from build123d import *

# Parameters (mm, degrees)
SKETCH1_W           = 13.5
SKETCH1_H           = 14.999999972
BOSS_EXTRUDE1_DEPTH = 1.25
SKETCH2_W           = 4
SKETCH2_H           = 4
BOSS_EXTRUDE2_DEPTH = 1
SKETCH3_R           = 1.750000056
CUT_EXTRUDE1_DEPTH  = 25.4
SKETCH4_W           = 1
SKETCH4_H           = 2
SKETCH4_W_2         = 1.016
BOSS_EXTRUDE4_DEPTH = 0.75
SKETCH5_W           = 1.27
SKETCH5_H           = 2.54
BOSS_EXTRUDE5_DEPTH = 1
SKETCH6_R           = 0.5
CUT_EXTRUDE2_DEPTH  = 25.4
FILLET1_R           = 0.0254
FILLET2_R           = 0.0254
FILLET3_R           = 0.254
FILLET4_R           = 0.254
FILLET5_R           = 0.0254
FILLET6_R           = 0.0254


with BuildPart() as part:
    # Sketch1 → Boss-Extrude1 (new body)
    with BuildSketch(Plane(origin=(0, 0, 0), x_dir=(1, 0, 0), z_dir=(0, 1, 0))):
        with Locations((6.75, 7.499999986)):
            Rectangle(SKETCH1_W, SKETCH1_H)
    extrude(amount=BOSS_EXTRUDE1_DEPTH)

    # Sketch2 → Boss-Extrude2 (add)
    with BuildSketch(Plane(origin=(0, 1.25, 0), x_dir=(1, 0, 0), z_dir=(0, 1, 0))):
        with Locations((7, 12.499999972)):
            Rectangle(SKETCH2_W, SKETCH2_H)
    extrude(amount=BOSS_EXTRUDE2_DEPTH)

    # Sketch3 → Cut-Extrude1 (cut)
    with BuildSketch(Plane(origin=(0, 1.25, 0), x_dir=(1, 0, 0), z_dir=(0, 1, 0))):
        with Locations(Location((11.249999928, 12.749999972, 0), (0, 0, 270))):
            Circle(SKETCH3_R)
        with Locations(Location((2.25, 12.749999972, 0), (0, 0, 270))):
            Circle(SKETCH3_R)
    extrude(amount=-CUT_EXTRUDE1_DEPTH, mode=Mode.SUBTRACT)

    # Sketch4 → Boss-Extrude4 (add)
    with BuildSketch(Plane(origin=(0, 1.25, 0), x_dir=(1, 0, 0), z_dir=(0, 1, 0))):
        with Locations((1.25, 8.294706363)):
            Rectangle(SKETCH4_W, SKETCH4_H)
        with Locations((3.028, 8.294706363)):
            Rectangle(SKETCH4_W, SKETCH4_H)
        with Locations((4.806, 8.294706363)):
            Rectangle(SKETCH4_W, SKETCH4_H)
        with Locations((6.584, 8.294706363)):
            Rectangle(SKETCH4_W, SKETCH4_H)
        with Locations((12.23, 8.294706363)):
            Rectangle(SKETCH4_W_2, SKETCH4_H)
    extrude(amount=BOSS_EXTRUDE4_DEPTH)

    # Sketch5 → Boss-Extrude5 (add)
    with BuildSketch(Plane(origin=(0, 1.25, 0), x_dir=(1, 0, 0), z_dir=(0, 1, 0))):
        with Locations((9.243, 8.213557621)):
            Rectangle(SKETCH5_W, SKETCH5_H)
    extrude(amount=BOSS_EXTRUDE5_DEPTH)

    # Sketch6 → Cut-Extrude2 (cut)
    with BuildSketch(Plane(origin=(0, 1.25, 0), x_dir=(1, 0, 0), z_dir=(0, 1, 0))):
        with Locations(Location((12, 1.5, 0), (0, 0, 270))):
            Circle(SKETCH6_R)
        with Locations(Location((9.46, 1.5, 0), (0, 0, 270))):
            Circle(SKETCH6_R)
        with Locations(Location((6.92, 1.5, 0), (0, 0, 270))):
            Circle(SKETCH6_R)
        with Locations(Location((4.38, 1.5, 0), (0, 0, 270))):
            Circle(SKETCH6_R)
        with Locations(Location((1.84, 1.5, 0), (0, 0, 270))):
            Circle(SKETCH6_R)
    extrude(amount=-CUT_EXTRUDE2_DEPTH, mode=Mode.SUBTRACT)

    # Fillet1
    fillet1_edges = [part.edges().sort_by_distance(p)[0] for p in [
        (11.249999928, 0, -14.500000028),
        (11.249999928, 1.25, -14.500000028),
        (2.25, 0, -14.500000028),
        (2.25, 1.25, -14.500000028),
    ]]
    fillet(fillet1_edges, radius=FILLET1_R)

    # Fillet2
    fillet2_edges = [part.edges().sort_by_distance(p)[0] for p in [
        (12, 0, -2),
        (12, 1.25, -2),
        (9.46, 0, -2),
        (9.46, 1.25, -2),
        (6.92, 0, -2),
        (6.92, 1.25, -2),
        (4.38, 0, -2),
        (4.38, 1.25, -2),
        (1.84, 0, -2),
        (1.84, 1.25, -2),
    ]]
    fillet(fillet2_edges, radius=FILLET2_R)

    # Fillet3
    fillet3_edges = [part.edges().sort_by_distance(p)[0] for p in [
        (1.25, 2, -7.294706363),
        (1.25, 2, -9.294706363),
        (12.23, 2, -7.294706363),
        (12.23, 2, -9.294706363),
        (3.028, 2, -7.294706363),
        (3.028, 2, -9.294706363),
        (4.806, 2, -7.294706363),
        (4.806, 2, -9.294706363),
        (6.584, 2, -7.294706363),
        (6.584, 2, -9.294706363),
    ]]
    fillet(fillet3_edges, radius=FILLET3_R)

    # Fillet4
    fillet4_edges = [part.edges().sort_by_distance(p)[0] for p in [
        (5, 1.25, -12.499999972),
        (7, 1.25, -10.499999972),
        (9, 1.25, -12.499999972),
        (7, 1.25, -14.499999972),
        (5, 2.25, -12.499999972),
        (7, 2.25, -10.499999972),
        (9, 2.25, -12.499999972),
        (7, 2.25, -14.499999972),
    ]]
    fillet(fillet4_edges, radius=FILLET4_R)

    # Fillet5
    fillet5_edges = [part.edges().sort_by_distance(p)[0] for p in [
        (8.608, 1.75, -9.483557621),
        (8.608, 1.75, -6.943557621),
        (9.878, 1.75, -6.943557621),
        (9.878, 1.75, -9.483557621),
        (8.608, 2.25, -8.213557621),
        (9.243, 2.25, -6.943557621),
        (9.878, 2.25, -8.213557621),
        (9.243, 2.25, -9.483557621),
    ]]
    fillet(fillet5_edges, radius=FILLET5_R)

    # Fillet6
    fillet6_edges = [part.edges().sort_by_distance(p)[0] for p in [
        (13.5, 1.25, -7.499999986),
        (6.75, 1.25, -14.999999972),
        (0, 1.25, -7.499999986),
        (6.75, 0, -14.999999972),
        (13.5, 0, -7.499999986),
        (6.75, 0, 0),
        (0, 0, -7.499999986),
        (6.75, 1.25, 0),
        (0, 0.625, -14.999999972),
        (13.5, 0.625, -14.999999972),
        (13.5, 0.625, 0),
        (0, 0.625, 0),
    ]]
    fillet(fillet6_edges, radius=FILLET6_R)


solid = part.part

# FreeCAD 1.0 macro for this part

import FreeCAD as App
import Part
import Sketcher
from FreeCAD import Vector


def edges_at(feature, points):
    """Names of the edges that pass closest to the given points."""
    edges = feature.Shape.Edges
    near = lambda p: min(range(len(edges)), key=lambda i: edges[i].distToShape(Part.Vertex(*p))[0])
    return sorted({f"Edge{near(p) + 1}" for p in points})


def add_polygon(sketch, points):
    """Adds a closed chain of lines whose ends are joined by coincident constraints."""
    first, n = sketch.GeometryCount, len(points)
    for a, b in zip(points, points[1:] + points[:1]):
        sketch.addGeometry(Part.LineSegment(App.Vector(*a, 0), App.Vector(*b, 0)), False)
    for i in range(n):
        sketch.addConstraint(Sketcher.Constraint("Coincident", first + i, 2, first + (i + 1) % n, 1))

doc = App.newDocument("Part")
params = doc.addObject("Spreadsheet::Sheet", "Params")
for row, (alias, value) in enumerate([
    ("sketch1_height", "15 mm"),
    ("sketch1_width", "13.5 mm"),
    ("pad1_length", "1.25 mm"),
    ("sketch2_width", "4 mm"),
    ("pad2_length", "1 mm"),
    ("sketch3_diameter", "3.5 mm"),
    ("pocket1_length", "25.4 mm"),
    ("sketch4_width", "1 mm"),
    ("sketch4_height", "2 mm"),
    ("pad3_length", "0.75 mm"),
    ("sketch5_width", "1.27 mm"),
    ("sketch5_height", "2.54 mm"),
    ("pad4_length", "1 mm"),
    ("sketch6_diameter", "1 mm"),
    ("pocket2_length", "25.4 mm"),
    ("fillet_radius", "0.0254 mm"),
    ("fillet2_radius", "0.0254 mm"),
    ("fillet3_radius", "0.254 mm"),
    ("fillet4_radius", "0.254 mm"),
    ("fillet5_radius", "0.0254 mm"),
    ("fillet6_radius", "0.0254 mm"),
], start=1):
    params.set(f"A{row}", alias)
    params.set(f"B{row}", "=" + value)
    params.setAlias(f"B{row}", alias)

body = doc.addObject("PartDesign::Body", "Body")

# Sketch on XZ plane
sketch1 = body.newObject("Sketcher::SketchObject", "Sketch")
sketch1.AttachmentSupport = (doc.getObject("XZ_Plane"), [""])
sketch1.MapMode = "FlatFace"
add_polygon(sketch1, [(0, -15), (0, 0), (14, 0), (14, -15)])  # lines 0-3
sketch1.addConstraint(Sketcher.Constraint("Vertical", 0))
sketch1.addConstraint(Sketcher.Constraint("Horizontal", 1))
sketch1.addConstraint(Sketcher.Constraint("Vertical", 2))
sketch1.addConstraint(Sketcher.Constraint("Horizontal", 3))
sketch1.addConstraint(Sketcher.Constraint("Coincident", 0, 2, -1, 1))
sketch1.addConstraint(Sketcher.Constraint("DistanceY", 0, 1, 0, 2, 15.0))
sketch1.addConstraint(Sketcher.Constraint("DistanceX", 1, 1, 1, 2, 13.5))
sketch1.setExpression("Constraints[9]", "Params.sketch1_height")
sketch1.setExpression("Constraints[10]", "Params.sketch1_width")
pad1 = body.newObject("PartDesign::Pad", "Pad")
pad1.Profile = sketch1
pad1.setExpression("Length", "Params.pad1_length")
pad1.Reversed = True

# Sketch on XZ plane
sketch2 = body.newObject("Sketcher::SketchObject", "Sketch001")
sketch2.AttachmentSupport = (doc.getObject("XZ_Plane"), [""])
sketch2.MapMode = "FlatFace"
sketch2.AttachmentOffset = App.Placement(Vector(0, 0, -1.25), App.Rotation())
add_polygon(sketch2, [(5, -14.5), (5, -10.5), (9, -10.5), (9, -14.5)])  # lines 0-3
sketch2.addConstraint(Sketcher.Constraint("Vertical", 0))
sketch2.addConstraint(Sketcher.Constraint("Horizontal", 1))
sketch2.addConstraint(Sketcher.Constraint("Vertical", 2))
sketch2.addConstraint(Sketcher.Constraint("Horizontal", 3))
sketch2.addConstraint(Sketcher.Constraint("Equal", 3, 0))
sketch2.addConstraint(Sketcher.Constraint("DistanceX", 1, 1, 1, 2, 4.0))
sketch2.addConstraint(Sketcher.Constraint("DistanceX", -1, 1, 0, 2, 5.0))
sketch2.addConstraint(Sketcher.Constraint("DistanceY", 0, 2, -1, 1, 10.5))
sketch2.setExpression("Constraints[9]", "Params.sketch2_width")
pad2 = body.newObject("PartDesign::Pad", "Pad001")
pad2.Profile = sketch2
pad2.setExpression("Length", "Params.pad2_length")
pad2.Reversed = True

# Sketch on XZ plane
sketch3 = body.newObject("Sketcher::SketchObject", "Sketch002")
sketch3.AttachmentSupport = (doc.getObject("XZ_Plane"), [""])
sketch3.MapMode = "FlatFace"
sketch3.AttachmentOffset = App.Placement(Vector(0, 0, -1.25), App.Rotation())
sketch3.addGeometry(Part.Circle(Vector(11.2, -12.7, 0), Vector(0, 0, 1), 1.8), False)
sketch3.addGeometry(Part.Circle(Vector(2.2, -12.7, 0), Vector(0, 0, 1), 1.8), False)
sketch3.addConstraint(Sketcher.Constraint("Equal", 0, 1))
sketch3.addConstraint(Sketcher.Constraint("Horizontal", 0, 3, 1, 3))
sketch3.addConstraint(Sketcher.Constraint("Diameter", 0, 3.5))
sketch3.addConstraint(Sketcher.Constraint("DistanceX", 1, 3, 0, 3, 9.0))
sketch3.addConstraint(Sketcher.Constraint("DistanceX", -1, 1, 0, 3, 11.25))
sketch3.addConstraint(Sketcher.Constraint("DistanceY", 0, 3, -1, 1, 12.75))
sketch3.setExpression("Constraints[2]", "Params.sketch3_diameter")
pocket1 = body.newObject("PartDesign::Pocket", "Pocket")
pocket1.Profile = sketch3
pocket1.setExpression("Length", "Params.pocket1_length")
pocket1.Reversed = True

# Sketch on XZ plane
sketch4 = body.newObject("Sketcher::SketchObject", "Sketch003")
sketch4.AttachmentSupport = (doc.getObject("XZ_Plane"), [""])
sketch4.MapMode = "FlatFace"
sketch4.AttachmentOffset = App.Placement(Vector(0, 0, -1.25), App.Rotation())
add_polygon(sketch4, [(0.8, -9.3), (0.8, -7.3), (1.8, -7.3), (1.8, -9.3)])  # lines 0-3
add_polygon(sketch4, [(2.5, -9.3), (2.5, -7.3), (3.5, -7.3), (3.5, -9.3)])  # lines 4-7
add_polygon(sketch4, [(4.3, -9.3), (4.3, -7.3), (5.3, -7.3), (5.3, -9.3)])  # lines 8-11
add_polygon(sketch4, [(6.1, -9.3), (6.1, -7.3), (7.1, -7.3), (7.1, -9.3)])  # lines 12-15
add_polygon(sketch4, [(11.7, -9.3), (11.7, -7.3), (12.7, -7.3), (12.7, -9.3)])  # lines 16-19
sketch4.addConstraint(Sketcher.Constraint("Vertical", 0))
sketch4.addConstraint(Sketcher.Constraint("Horizontal", 1))
sketch4.addConstraint(Sketcher.Constraint("Vertical", 2))
sketch4.addConstraint(Sketcher.Constraint("Horizontal", 3))
sketch4.addConstraint(Sketcher.Constraint("Vertical", 4))
sketch4.addConstraint(Sketcher.Constraint("Horizontal", 5))
sketch4.addConstraint(Sketcher.Constraint("Vertical", 6))
sketch4.addConstraint(Sketcher.Constraint("Horizontal", 7))
sketch4.addConstraint(Sketcher.Constraint("Vertical", 8))
sketch4.addConstraint(Sketcher.Constraint("Horizontal", 9))
sketch4.addConstraint(Sketcher.Constraint("Vertical", 10))
sketch4.addConstraint(Sketcher.Constraint("Horizontal", 11))
sketch4.addConstraint(Sketcher.Constraint("Vertical", 12))
sketch4.addConstraint(Sketcher.Constraint("Horizontal", 13))
sketch4.addConstraint(Sketcher.Constraint("Vertical", 14))
sketch4.addConstraint(Sketcher.Constraint("Horizontal", 15))
sketch4.addConstraint(Sketcher.Constraint("Vertical", 16))
sketch4.addConstraint(Sketcher.Constraint("Horizontal", 17))
sketch4.addConstraint(Sketcher.Constraint("Vertical", 18))
sketch4.addConstraint(Sketcher.Constraint("Horizontal", 19))
sketch4.addConstraint(Sketcher.Constraint("Horizontal", 1, 2, 4, 2))
sketch4.addConstraint(Sketcher.Constraint("Horizontal", 3, 2, 6, 2))
sketch4.addConstraint(Sketcher.Constraint("Horizontal", 5, 2, 8, 2))
sketch4.addConstraint(Sketcher.Constraint("Horizontal", 7, 2, 10, 2))
sketch4.addConstraint(Sketcher.Constraint("Horizontal", 9, 2, 12, 2))
sketch4.addConstraint(Sketcher.Constraint("Horizontal", 11, 2, 14, 2))
sketch4.addConstraint(Sketcher.Constraint("Horizontal", 13, 2, 16, 2))
sketch4.addConstraint(Sketcher.Constraint("Horizontal", 15, 2, 18, 2))
sketch4.addConstraint(Sketcher.Constraint("Equal", 3, 5))
sketch4.addConstraint(Sketcher.Constraint("Equal", 7, 9))
sketch4.addConstraint(Sketcher.Constraint("Equal", 11, 13))
sketch4.addConstraint(Sketcher.Constraint("DistanceX", 1, 1, 1, 2, 1.0))
sketch4.addConstraint(Sketcher.Constraint("DistanceY", 0, 1, 0, 2, 2.0))
sketch4.addConstraint(Sketcher.Constraint("DistanceX", 17, 1, 17, 2, 1.016))
sketch4.addConstraint(Sketcher.Constraint("DistanceX", -1, 1, 0, 2, 0.75))
sketch4.addConstraint(Sketcher.Constraint("DistanceX", -1, 1, 4, 2, 2.528))
sketch4.addConstraint(Sketcher.Constraint("DistanceX", -1, 1, 8, 2, 4.306))
sketch4.addConstraint(Sketcher.Constraint("DistanceX", -1, 1, 12, 2, 6.084))
sketch4.addConstraint(Sketcher.Constraint("DistanceX", -1, 1, 16, 2, 11.722))
sketch4.addConstraint(Sketcher.Constraint("DistanceY", 0, 2, -1, 1, 7.294706))
sketch4.setExpression("Constraints[51]", "Params.sketch4_width")
sketch4.setExpression("Constraints[52]", "Params.sketch4_height")
pad3 = body.newObject("PartDesign::Pad", "Pad002")
pad3.Profile = sketch4
pad3.setExpression("Length", "Params.pad3_length")
pad3.Reversed = True

# Sketch on XZ plane
sketch5 = body.newObject("Sketcher::SketchObject", "Sketch004")
sketch5.AttachmentSupport = (doc.getObject("XZ_Plane"), [""])
sketch5.MapMode = "FlatFace"
sketch5.AttachmentOffset = App.Placement(Vector(0, 0, -1.25), App.Rotation())
add_polygon(sketch5, [(8.6, -9.5), (8.6, -6.9), (9.9, -6.9), (9.9, -9.5)])  # lines 0-3
sketch5.addConstraint(Sketcher.Constraint("Vertical", 0))
sketch5.addConstraint(Sketcher.Constraint("Horizontal", 1))
sketch5.addConstraint(Sketcher.Constraint("Vertical", 2))
sketch5.addConstraint(Sketcher.Constraint("Horizontal", 3))
sketch5.addConstraint(Sketcher.Constraint("DistanceX", 1, 1, 1, 2, 1.27))
sketch5.addConstraint(Sketcher.Constraint("DistanceY", 0, 1, 0, 2, 2.54))
sketch5.addConstraint(Sketcher.Constraint("DistanceX", -1, 1, 0, 2, 8.608))
sketch5.addConstraint(Sketcher.Constraint("DistanceY", 0, 2, -1, 1, 6.943558))
sketch5.setExpression("Constraints[8]", "Params.sketch5_width")
sketch5.setExpression("Constraints[9]", "Params.sketch5_height")
pad4 = body.newObject("PartDesign::Pad", "Pad003")
pad4.Profile = sketch5
pad4.setExpression("Length", "Params.pad4_length")
pad4.Reversed = True

# Sketch on XZ plane
sketch6 = body.newObject("Sketcher::SketchObject", "Sketch005")
sketch6.AttachmentSupport = (doc.getObject("XZ_Plane"), [""])
sketch6.MapMode = "FlatFace"
sketch6.AttachmentOffset = App.Placement(Vector(0, 0, -1.25), App.Rotation())
sketch6.addGeometry(Part.Circle(Vector(12, -1.5, 0), Vector(0, 0, 1), 0.5), False)
sketch6.addGeometry(Part.Circle(Vector(9.5, -1.5, 0), Vector(0, 0, 1), 0.5), False)
sketch6.addGeometry(Part.Circle(Vector(6.9, -1.5, 0), Vector(0, 0, 1), 0.5), False)
sketch6.addGeometry(Part.Circle(Vector(4.4, -1.5, 0), Vector(0, 0, 1), 0.5), False)
sketch6.addGeometry(Part.Circle(Vector(1.8, -1.5, 0), Vector(0, 0, 1), 0.5), False)
sketch6.addConstraint(Sketcher.Constraint("Equal", 0, 1))
sketch6.addConstraint(Sketcher.Constraint("Equal", 1, 2))
sketch6.addConstraint(Sketcher.Constraint("Equal", 2, 3))
sketch6.addConstraint(Sketcher.Constraint("Equal", 3, 4))
sketch6.addConstraint(Sketcher.Constraint("Horizontal", 0, 3, 1, 3))
sketch6.addConstraint(Sketcher.Constraint("Horizontal", 1, 3, 2, 3))
sketch6.addConstraint(Sketcher.Constraint("Horizontal", 2, 3, 3, 3))
sketch6.addConstraint(Sketcher.Constraint("Horizontal", 3, 3, 4, 3))
sketch6.addConstraint(Sketcher.Constraint("Diameter", 0, 1.0))
sketch6.addConstraint(Sketcher.Constraint("DistanceX", -1, 1, 0, 3, 12.0))
sketch6.addConstraint(Sketcher.Constraint("DistanceY", 0, 3, -1, 1, 1.5))
sketch6.addConstraint(Sketcher.Constraint("DistanceX", -1, 1, 1, 3, 9.46))
sketch6.addConstraint(Sketcher.Constraint("DistanceX", -1, 1, 2, 3, 6.92))
sketch6.addConstraint(Sketcher.Constraint("DistanceX", -1, 1, 3, 3, 4.38))
sketch6.addConstraint(Sketcher.Constraint("DistanceX", -1, 1, 4, 3, 1.84))
sketch6.setExpression("Constraints[8]", "Params.sketch6_diameter")
pocket2 = body.newObject("PartDesign::Pocket", "Pocket001")
pocket2.Profile = sketch6
pocket2.setExpression("Length", "Params.pocket2_length")
pocket2.Reversed = True
doc.recompute()

fillet = body.newObject("PartDesign::Fillet", "Fillet")
fillet.Base = (pocket2, edges_at(pocket2, [
    (11.25, 0, -14.5),
    (11.25, 1.25, -14.5),
    (2.25, 0, -14.5),
    (2.25, 1.25, -14.5),
]))
fillet.setExpression("Radius", "Params.fillet_radius")
doc.recompute()

fillet2 = body.newObject("PartDesign::Fillet", "Fillet001")
fillet2.Base = (fillet, edges_at(fillet, [
    (12, 0, -2),
    (12, 1.25, -2),
    (9.46, 0, -2),
    (9.46, 1.25, -2),
    (6.92, 0, -2),
    (6.92, 1.25, -2),
    (4.38, 0, -2),
    (4.38, 1.25, -2),
    (1.84, 0, -2),
    (1.84, 1.25, -2),
]))
fillet2.setExpression("Radius", "Params.fillet2_radius")
doc.recompute()

fillet3 = body.newObject("PartDesign::Fillet", "Fillet002")
fillet3.Base = (fillet2, edges_at(fillet2, [
    (1.25, 2, -7.295),
    (1.25, 2, -9.295),
    (12.23, 2, -7.295),
    (12.23, 2, -9.295),
    (3.028, 2, -7.295),
    (3.028, 2, -9.295),
    (4.806, 2, -7.295),
    (4.806, 2, -9.295),
    (6.584, 2, -7.295),
    (6.584, 2, -9.295),
]))
fillet3.setExpression("Radius", "Params.fillet3_radius")
doc.recompute()

fillet4 = body.newObject("PartDesign::Fillet", "Fillet003")
fillet4.Base = (fillet3, edges_at(fillet3, [
    (5, 1.25, -12.5),
    (7, 1.25, -10.5),
    (9, 1.25, -12.5),
    (7, 1.25, -14.5),
    (5, 2.25, -12.5),
    (7, 2.25, -10.5),
    (9, 2.25, -12.5),
    (7, 2.25, -14.5),
]))
fillet4.setExpression("Radius", "Params.fillet4_radius")
doc.recompute()

fillet5 = body.newObject("PartDesign::Fillet", "Fillet004")
fillet5.Base = (fillet4, edges_at(fillet4, [
    (8.608, 1.75, -9.484),
    (8.608, 1.75, -6.944),
    (9.878, 1.75, -6.944),
    (9.878, 1.75, -9.484),
    (8.608, 2.25, -8.214),
    (9.243, 2.25, -6.944),
    (9.878, 2.25, -8.214),
    (9.243, 2.25, -9.484),
]))
fillet5.setExpression("Radius", "Params.fillet5_radius")
doc.recompute()

fillet6 = body.newObject("PartDesign::Fillet", "Fillet005")
fillet6.Base = (fillet5, edges_at(fillet5, [
    (13.5, 1.25, -7.5),
    (6.75, 1.25, -15),
    (0, 1.25, -7.5),
    (6.75, 0, -15),
    (13.5, 0, -7.5),
    (6.75, 0, 0),
    (0, 0, -7.5),
    (6.75, 1.25, 0),
    (0, 0.625, -15),
    (13.5, 0.625, -15),
    (13.5, 0.625, 0),
    (0, 0.625, 0),
]))
fillet6.setExpression("Radius", "Params.fillet6_radius")

doc.recompute()
